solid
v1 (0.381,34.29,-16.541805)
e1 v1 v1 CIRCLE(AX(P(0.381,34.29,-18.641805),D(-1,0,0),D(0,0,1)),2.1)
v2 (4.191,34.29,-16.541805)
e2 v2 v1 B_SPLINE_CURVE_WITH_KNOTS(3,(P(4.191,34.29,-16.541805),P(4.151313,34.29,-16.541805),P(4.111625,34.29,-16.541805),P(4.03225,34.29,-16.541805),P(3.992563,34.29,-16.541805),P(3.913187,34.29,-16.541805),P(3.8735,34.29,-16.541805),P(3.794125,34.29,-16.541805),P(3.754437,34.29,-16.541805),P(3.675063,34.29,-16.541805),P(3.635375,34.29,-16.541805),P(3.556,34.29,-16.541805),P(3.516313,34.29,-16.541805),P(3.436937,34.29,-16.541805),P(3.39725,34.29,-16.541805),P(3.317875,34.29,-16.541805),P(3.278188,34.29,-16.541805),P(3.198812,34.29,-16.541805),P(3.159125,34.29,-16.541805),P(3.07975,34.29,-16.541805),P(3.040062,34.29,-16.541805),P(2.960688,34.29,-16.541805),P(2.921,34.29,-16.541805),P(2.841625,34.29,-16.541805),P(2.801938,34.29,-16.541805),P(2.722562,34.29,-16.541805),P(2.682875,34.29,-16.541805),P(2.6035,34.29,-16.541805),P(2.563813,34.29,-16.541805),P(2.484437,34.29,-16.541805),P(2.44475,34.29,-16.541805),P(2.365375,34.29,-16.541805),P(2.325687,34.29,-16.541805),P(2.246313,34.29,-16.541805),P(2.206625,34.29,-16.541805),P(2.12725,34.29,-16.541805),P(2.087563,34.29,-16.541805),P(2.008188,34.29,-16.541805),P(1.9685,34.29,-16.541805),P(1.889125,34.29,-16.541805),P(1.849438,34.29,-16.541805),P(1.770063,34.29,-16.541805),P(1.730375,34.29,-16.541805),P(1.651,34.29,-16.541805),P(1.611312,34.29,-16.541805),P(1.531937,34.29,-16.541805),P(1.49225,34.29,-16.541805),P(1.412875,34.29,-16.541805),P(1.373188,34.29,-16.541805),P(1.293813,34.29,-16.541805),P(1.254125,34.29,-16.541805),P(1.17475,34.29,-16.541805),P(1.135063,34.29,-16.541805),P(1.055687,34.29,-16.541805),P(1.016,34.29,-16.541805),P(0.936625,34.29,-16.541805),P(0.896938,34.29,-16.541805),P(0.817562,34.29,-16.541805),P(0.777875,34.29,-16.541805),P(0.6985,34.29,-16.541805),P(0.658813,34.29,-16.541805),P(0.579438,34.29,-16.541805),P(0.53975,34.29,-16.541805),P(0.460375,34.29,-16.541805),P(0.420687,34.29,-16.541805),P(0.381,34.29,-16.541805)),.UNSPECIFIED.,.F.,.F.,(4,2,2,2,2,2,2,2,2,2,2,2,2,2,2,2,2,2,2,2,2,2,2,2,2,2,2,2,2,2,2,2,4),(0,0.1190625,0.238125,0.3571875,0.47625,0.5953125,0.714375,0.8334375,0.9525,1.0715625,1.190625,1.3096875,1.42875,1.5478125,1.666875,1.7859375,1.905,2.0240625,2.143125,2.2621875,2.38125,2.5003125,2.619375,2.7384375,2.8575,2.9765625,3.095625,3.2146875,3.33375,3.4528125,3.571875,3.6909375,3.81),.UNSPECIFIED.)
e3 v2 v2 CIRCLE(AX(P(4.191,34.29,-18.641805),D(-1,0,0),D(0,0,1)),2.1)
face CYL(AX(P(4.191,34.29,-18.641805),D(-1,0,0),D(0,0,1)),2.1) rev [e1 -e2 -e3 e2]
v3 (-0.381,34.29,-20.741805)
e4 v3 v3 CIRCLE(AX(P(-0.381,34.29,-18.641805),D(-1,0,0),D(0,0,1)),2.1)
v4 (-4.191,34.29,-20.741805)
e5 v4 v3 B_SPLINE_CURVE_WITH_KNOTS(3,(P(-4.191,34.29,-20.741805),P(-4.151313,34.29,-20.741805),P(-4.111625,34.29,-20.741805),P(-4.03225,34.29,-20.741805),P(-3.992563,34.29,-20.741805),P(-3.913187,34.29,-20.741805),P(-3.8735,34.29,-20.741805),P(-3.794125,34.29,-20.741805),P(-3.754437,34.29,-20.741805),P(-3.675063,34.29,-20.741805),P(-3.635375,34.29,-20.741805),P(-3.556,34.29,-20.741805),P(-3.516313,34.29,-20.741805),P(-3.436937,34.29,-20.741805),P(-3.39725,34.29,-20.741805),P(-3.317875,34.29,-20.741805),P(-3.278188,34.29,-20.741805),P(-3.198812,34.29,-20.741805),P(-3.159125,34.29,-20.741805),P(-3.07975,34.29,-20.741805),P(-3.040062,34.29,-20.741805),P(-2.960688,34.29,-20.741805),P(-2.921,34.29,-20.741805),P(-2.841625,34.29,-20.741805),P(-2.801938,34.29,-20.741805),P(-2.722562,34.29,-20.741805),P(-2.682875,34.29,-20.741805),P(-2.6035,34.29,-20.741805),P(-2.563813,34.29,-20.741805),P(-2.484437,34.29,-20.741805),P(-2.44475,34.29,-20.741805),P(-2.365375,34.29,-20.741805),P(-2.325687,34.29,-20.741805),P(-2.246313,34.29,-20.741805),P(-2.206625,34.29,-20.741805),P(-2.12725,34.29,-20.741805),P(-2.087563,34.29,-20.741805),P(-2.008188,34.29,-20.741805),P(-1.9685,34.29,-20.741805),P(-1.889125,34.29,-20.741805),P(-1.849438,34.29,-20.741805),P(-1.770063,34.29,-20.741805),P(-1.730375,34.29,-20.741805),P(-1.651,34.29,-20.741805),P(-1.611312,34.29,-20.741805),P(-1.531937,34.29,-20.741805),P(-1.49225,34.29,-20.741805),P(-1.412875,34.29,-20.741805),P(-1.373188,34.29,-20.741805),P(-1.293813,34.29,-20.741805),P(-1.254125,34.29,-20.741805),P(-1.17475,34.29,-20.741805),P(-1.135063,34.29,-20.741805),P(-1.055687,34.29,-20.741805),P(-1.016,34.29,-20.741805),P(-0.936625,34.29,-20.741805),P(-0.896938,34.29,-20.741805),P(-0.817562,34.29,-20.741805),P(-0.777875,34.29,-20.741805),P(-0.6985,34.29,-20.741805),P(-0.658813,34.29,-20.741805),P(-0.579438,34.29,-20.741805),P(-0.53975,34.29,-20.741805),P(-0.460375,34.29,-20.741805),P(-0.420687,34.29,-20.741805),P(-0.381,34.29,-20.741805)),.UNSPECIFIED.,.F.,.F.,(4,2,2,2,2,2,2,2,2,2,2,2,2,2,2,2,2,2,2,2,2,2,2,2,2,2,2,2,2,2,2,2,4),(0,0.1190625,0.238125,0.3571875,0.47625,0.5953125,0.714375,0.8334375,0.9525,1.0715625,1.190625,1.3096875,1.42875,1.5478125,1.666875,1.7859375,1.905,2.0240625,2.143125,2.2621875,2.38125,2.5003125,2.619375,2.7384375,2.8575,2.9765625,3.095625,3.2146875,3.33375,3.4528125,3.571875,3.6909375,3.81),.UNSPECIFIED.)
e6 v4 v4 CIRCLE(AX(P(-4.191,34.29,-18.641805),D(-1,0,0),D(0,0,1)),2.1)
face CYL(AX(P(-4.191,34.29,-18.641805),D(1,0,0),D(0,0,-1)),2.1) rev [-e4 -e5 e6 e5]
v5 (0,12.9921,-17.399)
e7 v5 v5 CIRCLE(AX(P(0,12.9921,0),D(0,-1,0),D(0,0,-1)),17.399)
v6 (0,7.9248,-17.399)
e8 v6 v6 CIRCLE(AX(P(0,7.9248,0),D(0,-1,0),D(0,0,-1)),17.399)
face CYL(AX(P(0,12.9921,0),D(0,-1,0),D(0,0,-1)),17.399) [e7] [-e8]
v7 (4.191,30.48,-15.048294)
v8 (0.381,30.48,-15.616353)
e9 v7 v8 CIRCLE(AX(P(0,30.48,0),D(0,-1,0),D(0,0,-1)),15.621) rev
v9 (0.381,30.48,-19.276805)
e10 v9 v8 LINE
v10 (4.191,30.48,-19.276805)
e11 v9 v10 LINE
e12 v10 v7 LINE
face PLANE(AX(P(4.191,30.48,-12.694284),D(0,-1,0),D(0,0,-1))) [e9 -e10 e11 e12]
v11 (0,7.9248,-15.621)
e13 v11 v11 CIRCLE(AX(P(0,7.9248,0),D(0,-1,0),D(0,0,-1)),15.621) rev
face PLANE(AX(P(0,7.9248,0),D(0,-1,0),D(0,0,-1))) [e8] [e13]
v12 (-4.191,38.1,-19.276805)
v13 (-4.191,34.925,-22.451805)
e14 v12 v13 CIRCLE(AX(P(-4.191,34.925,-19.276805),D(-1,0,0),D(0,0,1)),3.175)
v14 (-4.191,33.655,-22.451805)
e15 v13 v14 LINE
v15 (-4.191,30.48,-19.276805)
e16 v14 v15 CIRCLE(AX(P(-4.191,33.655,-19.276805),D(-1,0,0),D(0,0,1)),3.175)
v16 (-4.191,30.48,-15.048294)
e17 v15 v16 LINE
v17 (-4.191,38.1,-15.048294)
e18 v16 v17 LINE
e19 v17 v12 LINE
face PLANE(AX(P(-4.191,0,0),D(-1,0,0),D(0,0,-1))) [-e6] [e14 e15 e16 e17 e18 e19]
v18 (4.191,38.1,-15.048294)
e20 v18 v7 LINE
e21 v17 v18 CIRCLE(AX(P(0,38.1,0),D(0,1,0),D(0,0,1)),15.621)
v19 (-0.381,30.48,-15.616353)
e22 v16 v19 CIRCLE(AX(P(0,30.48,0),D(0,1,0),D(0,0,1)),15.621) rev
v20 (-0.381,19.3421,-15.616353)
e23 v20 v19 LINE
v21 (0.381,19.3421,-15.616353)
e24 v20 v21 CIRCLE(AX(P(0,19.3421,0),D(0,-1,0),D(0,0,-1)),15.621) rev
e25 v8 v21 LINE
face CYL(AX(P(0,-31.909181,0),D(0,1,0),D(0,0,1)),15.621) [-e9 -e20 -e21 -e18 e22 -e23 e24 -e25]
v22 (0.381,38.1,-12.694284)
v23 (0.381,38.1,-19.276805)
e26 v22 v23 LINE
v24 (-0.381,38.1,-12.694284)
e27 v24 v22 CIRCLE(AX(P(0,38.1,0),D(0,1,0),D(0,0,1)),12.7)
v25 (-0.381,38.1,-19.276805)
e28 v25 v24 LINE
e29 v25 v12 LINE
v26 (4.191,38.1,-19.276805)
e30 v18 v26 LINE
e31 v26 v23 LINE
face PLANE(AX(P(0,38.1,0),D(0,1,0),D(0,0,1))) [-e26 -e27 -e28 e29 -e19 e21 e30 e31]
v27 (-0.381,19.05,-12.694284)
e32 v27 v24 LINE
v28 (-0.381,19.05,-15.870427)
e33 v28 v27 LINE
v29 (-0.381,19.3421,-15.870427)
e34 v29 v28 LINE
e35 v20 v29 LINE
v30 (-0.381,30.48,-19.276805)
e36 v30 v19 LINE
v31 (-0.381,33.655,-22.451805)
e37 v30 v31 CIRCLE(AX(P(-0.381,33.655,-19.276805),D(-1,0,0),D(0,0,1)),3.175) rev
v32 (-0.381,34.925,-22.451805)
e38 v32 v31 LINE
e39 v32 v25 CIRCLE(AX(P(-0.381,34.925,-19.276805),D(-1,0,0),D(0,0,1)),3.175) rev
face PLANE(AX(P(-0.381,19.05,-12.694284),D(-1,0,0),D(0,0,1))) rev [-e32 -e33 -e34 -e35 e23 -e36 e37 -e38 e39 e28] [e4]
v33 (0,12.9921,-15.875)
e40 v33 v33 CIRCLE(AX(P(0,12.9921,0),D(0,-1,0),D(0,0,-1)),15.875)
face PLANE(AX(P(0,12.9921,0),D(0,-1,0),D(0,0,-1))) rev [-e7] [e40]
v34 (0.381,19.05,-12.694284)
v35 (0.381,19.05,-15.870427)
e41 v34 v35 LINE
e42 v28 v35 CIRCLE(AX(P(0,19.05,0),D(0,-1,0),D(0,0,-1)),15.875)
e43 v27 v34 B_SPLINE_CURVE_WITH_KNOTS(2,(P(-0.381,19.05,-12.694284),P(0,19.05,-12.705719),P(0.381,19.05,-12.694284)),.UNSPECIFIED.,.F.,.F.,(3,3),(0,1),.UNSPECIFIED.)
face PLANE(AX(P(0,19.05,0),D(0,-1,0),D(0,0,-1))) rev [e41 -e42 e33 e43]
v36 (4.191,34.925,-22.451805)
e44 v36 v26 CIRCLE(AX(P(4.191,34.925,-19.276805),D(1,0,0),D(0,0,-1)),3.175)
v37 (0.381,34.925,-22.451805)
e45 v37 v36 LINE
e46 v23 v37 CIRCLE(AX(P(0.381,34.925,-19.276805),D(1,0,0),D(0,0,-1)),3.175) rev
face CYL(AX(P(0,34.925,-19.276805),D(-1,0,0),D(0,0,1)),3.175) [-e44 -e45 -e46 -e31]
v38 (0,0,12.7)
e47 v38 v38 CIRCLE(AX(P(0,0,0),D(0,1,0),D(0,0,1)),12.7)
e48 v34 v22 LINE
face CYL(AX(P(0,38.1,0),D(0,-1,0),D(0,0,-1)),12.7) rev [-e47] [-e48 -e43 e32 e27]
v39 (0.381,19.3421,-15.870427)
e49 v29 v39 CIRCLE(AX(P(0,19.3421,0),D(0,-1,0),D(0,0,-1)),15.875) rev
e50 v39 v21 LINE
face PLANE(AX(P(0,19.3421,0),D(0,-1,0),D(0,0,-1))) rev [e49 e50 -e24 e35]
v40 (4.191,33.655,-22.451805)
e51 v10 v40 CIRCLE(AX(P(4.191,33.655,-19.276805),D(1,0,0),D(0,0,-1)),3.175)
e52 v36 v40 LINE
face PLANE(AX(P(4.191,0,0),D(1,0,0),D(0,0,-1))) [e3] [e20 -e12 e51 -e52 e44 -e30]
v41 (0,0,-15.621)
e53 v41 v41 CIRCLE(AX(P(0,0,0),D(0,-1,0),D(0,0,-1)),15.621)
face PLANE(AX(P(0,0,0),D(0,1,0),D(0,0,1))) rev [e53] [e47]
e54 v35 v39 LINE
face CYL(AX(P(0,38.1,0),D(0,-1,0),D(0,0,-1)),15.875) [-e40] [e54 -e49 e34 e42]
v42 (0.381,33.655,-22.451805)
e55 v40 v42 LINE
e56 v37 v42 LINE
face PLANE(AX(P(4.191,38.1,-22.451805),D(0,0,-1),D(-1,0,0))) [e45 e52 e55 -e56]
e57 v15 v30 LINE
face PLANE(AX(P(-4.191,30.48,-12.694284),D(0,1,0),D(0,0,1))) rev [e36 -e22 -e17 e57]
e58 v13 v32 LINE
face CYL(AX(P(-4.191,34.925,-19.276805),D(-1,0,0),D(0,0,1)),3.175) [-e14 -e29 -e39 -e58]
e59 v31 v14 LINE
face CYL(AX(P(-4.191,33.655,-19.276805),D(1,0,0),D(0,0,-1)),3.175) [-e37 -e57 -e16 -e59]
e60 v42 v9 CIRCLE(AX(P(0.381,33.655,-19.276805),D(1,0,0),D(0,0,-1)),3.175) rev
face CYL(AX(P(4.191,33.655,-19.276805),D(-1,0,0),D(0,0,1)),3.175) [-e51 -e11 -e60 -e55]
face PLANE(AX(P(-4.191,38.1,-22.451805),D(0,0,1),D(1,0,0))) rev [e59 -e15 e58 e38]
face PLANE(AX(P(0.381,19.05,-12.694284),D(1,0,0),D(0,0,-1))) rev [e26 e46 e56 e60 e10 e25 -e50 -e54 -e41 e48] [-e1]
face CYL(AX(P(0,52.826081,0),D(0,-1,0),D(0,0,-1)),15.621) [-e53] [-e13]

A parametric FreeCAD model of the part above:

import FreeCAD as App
import Part
import Sketcher
from FreeCAD import Vector
Q = App.Units.Quantity


def edges_at(feature, points):
    """Names of the edges that pass closest to the given points."""
    edges = feature.Shape.Edges
    near = lambda p: min(range(len(edges)), key=lambda i: edges[i].distToShape(Part.Vertex(*p))[0])
    return sorted({f"Edge{near(p) + 1}" for p in points})

doc = App.newDocument("Part")
params = doc.addObject("Spreadsheet::Sheet", "Params")
for row, (alias, value) in enumerate([
    ("sketch1_diameter", "1 in"),
    ("sketch1_diameter2", "1.25 in"),
    ("pad1_length", "1.5 in"),
    ("sketch2_diameter", "1.37 in"),
    ("sketch2_diameter2", "1.25 in"),
    ("pad2_length", "0.1995 in"),
    ("sketch3_diameter", "1.25 in"),
    ("sketch3_diameter2", "1.23 in"),
    ("pocket1_length", "0.312 in"),
    ("sketch4_diameter", "1.25 in"),
    ("sketch4_diameter2", "1.23 in"),
    ("pocket2_length", "0.7385 in"),
    ("sketch5_width", "0.03 in"),
    ("pocket3_length", "0.75 in"),
    ("sketch6_width", "0.3 in"),
    ("pad3_length", "0.15 in"),
    ("fillet_radius", "0.125 in"),
], start=1):
    params.set(f"A{row}", alias)
    params.set(f"B{row}", "=" + value)
    params.setAlias(f"B{row}", alias)

body = doc.addObject("PartDesign::Body", "Body")

# Sketch on XZ plane
sketch1 = body.newObject("Sketcher::SketchObject", "Sketch")
sketch1.AttachmentSupport = (doc.getObject("XZ_Plane"), [""])
sketch1.MapMode = "FlatFace"
sketch1.addGeometry(Part.Circle(Vector(0, 0, 0), Vector(0, 0, 1), 16), False)
sketch1.addGeometry(Part.Circle(Vector(0, 0, 0), Vector(0, 0, 1), 13), False)
sketch1.addConstraint(Sketcher.Constraint("Coincident", 0, 3, -1, 1))
sketch1.addConstraint(Sketcher.Constraint("Coincident", 1, 3, -1, 1))
sketch1.addConstraint(Sketcher.Constraint("Diameter", 1, Q("1 in")))
sketch1.addConstraint(Sketcher.Constraint("Diameter", 0, Q("1.25 in")))
sketch1.setExpression("Constraints[2]", "Params.sketch1_diameter")
sketch1.setExpression("Constraints[3]", "Params.sketch1_diameter2")
pad1 = body.newObject("PartDesign::Pad", "Pad")
pad1.Profile = sketch1
pad1.setExpression("Length", "Params.pad1_length")
pad1.Reversed = True

# Sketch on XZ plane
sketch2 = body.newObject("Sketcher::SketchObject", "Sketch001")
sketch2.AttachmentSupport = (doc.getObject("XZ_Plane"), [""])
sketch2.MapMode = "FlatFace"
sketch2.AttachmentOffset = App.Placement(Vector(0, 0, -0.312 * 25.4), App.Rotation())
sketch2.addGeometry(Part.Circle(Vector(0, 0, 0), Vector(0, 0, 1), 17), False)
sketch2.addGeometry(Part.Circle(Vector(0, 0, 0), Vector(0, 0, 1), 16), False)
sketch2.addConstraint(Sketcher.Constraint("Coincident", 0, 3, -1, 1))
sketch2.addConstraint(Sketcher.Constraint("Coincident", 1, 3, -1, 1))
sketch2.addConstraint(Sketcher.Constraint("Diameter", 0, Q("1.37 in")))
sketch2.addConstraint(Sketcher.Constraint("Diameter", 1, Q("1.25 in")))
sketch2.setExpression("Constraints[2]", "Params.sketch2_diameter")
sketch2.setExpression("Constraints[3]", "Params.sketch2_diameter2")
pad2 = body.newObject("PartDesign::Pad", "Pad001")
pad2.Profile = sketch2
pad2.setExpression("Length", "Params.pad2_length")
pad2.Reversed = True

# Sketch on XZ plane
sketch3 = body.newObject("Sketcher::SketchObject", "Sketch002")
sketch3.AttachmentSupport = (doc.getObject("XZ_Plane"), [""])
sketch3.MapMode = "FlatFace"
sketch3.addGeometry(Part.Circle(Vector(0, 0, 0), Vector(0, 0, 1), 16), False)
sketch3.addGeometry(Part.Circle(Vector(0, 0, 0), Vector(0, 0, 1), 16), False)
sketch3.addConstraint(Sketcher.Constraint("Coincident", 0, 3, -1, 1))
sketch3.addConstraint(Sketcher.Constraint("Coincident", 1, 3, -1, 1))
sketch3.addConstraint(Sketcher.Constraint("Diameter", 0, Q("1.25 in")))
sketch3.addConstraint(Sketcher.Constraint("Diameter", 1, Q("1.23 in")))
sketch3.setExpression("Constraints[2]", "Params.sketch3_diameter")
sketch3.setExpression("Constraints[3]", "Params.sketch3_diameter2")
pocket1 = body.newObject("PartDesign::Pocket", "Pocket")
pocket1.Profile = sketch3
pocket1.setExpression("Length", "Params.pocket1_length")

# Sketch on XZ plane
sketch4 = body.newObject("Sketcher::SketchObject", "Sketch003")
sketch4.AttachmentSupport = (doc.getObject("XZ_Plane"), [""])
sketch4.MapMode = "FlatFace"
sketch4.AttachmentOffset = App.Placement(Vector(0, 0, -0.7615 * 25.4), App.Rotation())
sketch4.addGeometry(Part.Circle(Vector(0, 0, 0), Vector(0, 0, 1), 16), False)
sketch4.addGeometry(Part.Circle(Vector(0, 0, 0), Vector(0, 0, 1), 16), False)
sketch4.addConstraint(Sketcher.Constraint("Coincident", 0, 3, -1, 1))
sketch4.addConstraint(Sketcher.Constraint("Coincident", 1, 3, -1, 1))
sketch4.addConstraint(Sketcher.Constraint("Diameter", 0, Q("1.25 in")))
sketch4.addConstraint(Sketcher.Constraint("Diameter", 1, Q("1.23 in")))
sketch4.setExpression("Constraints[2]", "Params.sketch4_diameter")
sketch4.setExpression("Constraints[3]", "Params.sketch4_diameter2")
pocket2 = body.newObject("PartDesign::Pocket", "Pocket001")
pocket2.Profile = sketch4
pocket2.setExpression("Length", "Params.pocket2_length")

# Sketch on XZ plane
sketch5 = body.newObject("Sketcher::SketchObject", "Sketch004")
sketch5.AttachmentSupport = (doc.getObject("XZ_Plane"), [""])
sketch5.MapMode = "FlatFace"
sketch5.AttachmentOffset = App.Placement(Vector(0, 0, -1.5 * 25.4), App.Rotation())
sketch5.addGeometry(Part.LineSegment(Vector(-0.4, -17.4, 0), Vector(-0.4, -12.7, 0)), False)
sketch5.addGeometry(Part.LineSegment(Vector(-0.4, -12.7, 0), Vector(0.4, -12.7, 0)), False)
sketch5.addGeometry(Part.LineSegment(Vector(0.4, -12.7, 0), Vector(0.4, -17.4, 0)), False)
sketch5.addGeometry(Part.LineSegment(Vector(0.4, -17.4, 0), Vector(-0.4, -17.4, 0)), False)
sketch5.addConstraint(Sketcher.Constraint("Coincident", 0, 2, 1, 1))
sketch5.addConstraint(Sketcher.Constraint("Coincident", 1, 2, 2, 1))
sketch5.addConstraint(Sketcher.Constraint("Coincident", 2, 2, 3, 1))
sketch5.addConstraint(Sketcher.Constraint("Coincident", 3, 2, 0, 1))
sketch5.addConstraint(Sketcher.Constraint("Vertical", 0))
sketch5.addConstraint(Sketcher.Constraint("Horizontal", 1))
sketch5.addConstraint(Sketcher.Constraint("Vertical", 2))
sketch5.addConstraint(Sketcher.Constraint("Horizontal", 3))
sketch5.addConstraint(Sketcher.Constraint("DistanceX", 1, 1, 1, 2, Q("0.03 in")))
sketch5.addConstraint(Sketcher.Constraint("DistanceX", 0, 2, -1, 1, Q("0.015 in")))
sketch5.addConstraint(Sketcher.Constraint("DistanceY", 2, 2, -1, 1, Q("0.685 in")))
sketch5.addConstraint(Sketcher.Constraint("DistanceY", 0, 1, 0, 2, Q("4.704716 mm")))
sketch5.setExpression("Constraints[8]", "Params.sketch5_width")
pocket3 = body.newObject("PartDesign::Pocket", "Pocket002")
pocket3.Profile = sketch5
pocket3.setExpression("Length", "Params.pocket3_length")
pocket3.Reversed = True

# Sketch on YZ plane
sketch6 = body.newObject("Sketcher::SketchObject", "Sketch005")
sketch6.AttachmentSupport = (doc.getObject("YZ_Plane"), [""])
sketch6.MapMode = "FlatFace"
sketch6.AttachmentOffset = App.Placement(Vector(0, 0, 0.015 * 25.4), App.Rotation())
sketch6.addGeometry(Part.LineSegment(Vector(38.1, -22.5, 0), Vector(30.5, -22.5, 0)), False)
sketch6.addGeometry(Part.LineSegment(Vector(30.5, -22.5, 0), Vector(30.5, -12.7, 0)), False)
sketch6.addGeometry(Part.LineSegment(Vector(30.5, -12.7, 0), Vector(38.1, -12.7, 0)), False)
sketch6.addGeometry(Part.LineSegment(Vector(38.1, -12.7, 0), Vector(38.1, -22.5, 0)), False)
sketch6.addGeometry(Part.Circle(Vector(34.3, -18.6, 0), Vector(0, 0, 1), 2.1), False)
sketch6.addConstraint(Sketcher.Constraint("Coincident", 0, 2, 1, 1))
sketch6.addConstraint(Sketcher.Constraint("Coincident", 1, 2, 2, 1))
sketch6.addConstraint(Sketcher.Constraint("Coincident", 2, 2, 3, 1))
sketch6.addConstraint(Sketcher.Constraint("Coincident", 3, 2, 0, 1))
sketch6.addConstraint(Sketcher.Constraint("Horizontal", 0))
sketch6.addConstraint(Sketcher.Constraint("Vertical", 1))
sketch6.addConstraint(Sketcher.Constraint("Horizontal", 2))
sketch6.addConstraint(Sketcher.Constraint("Vertical", 3))
sketch6.addConstraint(Sketcher.Constraint("DistanceX", 0, 2, 0, 1, Q("0.3 in")))
sketch6.addConstraint(Sketcher.Constraint("DistanceX", -1, 1, 0, 2, Q("1.2 in")))
sketch6.addConstraint(Sketcher.Constraint("Diameter", 4, Q("4.2 mm")))
sketch6.addConstraint(Sketcher.Constraint("DistanceX", -1, 1, 4, 3, Q("1.35 in")))
sketch6.addConstraint(Sketcher.Constraint("DistanceY", 0, 2, 4, 3, Q("0.15 in")))
sketch6.addConstraint(Sketcher.Constraint("DistanceY", 1, 1, 1, 2, Q("9.757521 mm")))
sketch6.addConstraint(Sketcher.Constraint("DistanceY", 4, 3, -1, 1, Q("18.641805 mm")))
sketch6.setExpression("Constraints[8]", "Params.sketch6_width")
pad3 = body.newObject("PartDesign::Pad", "Pad002")
pad3.Profile = sketch6
pad3.setExpression("Length", "Params.pad3_length")
doc.recompute()

mirrored = body.newObject("PartDesign::Mirrored", "Mirrored")
mirrored.Originals = [pad3]
mirrored.MirrorPlane = (doc.getObject("YZ_Plane"), [""])
body.Tip = mirrored
doc.recompute()

fillet = body.newObject("PartDesign::Fillet", "Fillet")
fillet.Base = (mirrored, edges_at(mirrored, [
    (-2.286, 30.48, -22.452),
    (2.286, 30.48, -22.452),
    (2.286, 38.1, -22.452),
    (-2.286, 38.1, -22.452),
]))
fillet.setExpression("Radius", "Params.fillet_radius")

doc.recompute()
